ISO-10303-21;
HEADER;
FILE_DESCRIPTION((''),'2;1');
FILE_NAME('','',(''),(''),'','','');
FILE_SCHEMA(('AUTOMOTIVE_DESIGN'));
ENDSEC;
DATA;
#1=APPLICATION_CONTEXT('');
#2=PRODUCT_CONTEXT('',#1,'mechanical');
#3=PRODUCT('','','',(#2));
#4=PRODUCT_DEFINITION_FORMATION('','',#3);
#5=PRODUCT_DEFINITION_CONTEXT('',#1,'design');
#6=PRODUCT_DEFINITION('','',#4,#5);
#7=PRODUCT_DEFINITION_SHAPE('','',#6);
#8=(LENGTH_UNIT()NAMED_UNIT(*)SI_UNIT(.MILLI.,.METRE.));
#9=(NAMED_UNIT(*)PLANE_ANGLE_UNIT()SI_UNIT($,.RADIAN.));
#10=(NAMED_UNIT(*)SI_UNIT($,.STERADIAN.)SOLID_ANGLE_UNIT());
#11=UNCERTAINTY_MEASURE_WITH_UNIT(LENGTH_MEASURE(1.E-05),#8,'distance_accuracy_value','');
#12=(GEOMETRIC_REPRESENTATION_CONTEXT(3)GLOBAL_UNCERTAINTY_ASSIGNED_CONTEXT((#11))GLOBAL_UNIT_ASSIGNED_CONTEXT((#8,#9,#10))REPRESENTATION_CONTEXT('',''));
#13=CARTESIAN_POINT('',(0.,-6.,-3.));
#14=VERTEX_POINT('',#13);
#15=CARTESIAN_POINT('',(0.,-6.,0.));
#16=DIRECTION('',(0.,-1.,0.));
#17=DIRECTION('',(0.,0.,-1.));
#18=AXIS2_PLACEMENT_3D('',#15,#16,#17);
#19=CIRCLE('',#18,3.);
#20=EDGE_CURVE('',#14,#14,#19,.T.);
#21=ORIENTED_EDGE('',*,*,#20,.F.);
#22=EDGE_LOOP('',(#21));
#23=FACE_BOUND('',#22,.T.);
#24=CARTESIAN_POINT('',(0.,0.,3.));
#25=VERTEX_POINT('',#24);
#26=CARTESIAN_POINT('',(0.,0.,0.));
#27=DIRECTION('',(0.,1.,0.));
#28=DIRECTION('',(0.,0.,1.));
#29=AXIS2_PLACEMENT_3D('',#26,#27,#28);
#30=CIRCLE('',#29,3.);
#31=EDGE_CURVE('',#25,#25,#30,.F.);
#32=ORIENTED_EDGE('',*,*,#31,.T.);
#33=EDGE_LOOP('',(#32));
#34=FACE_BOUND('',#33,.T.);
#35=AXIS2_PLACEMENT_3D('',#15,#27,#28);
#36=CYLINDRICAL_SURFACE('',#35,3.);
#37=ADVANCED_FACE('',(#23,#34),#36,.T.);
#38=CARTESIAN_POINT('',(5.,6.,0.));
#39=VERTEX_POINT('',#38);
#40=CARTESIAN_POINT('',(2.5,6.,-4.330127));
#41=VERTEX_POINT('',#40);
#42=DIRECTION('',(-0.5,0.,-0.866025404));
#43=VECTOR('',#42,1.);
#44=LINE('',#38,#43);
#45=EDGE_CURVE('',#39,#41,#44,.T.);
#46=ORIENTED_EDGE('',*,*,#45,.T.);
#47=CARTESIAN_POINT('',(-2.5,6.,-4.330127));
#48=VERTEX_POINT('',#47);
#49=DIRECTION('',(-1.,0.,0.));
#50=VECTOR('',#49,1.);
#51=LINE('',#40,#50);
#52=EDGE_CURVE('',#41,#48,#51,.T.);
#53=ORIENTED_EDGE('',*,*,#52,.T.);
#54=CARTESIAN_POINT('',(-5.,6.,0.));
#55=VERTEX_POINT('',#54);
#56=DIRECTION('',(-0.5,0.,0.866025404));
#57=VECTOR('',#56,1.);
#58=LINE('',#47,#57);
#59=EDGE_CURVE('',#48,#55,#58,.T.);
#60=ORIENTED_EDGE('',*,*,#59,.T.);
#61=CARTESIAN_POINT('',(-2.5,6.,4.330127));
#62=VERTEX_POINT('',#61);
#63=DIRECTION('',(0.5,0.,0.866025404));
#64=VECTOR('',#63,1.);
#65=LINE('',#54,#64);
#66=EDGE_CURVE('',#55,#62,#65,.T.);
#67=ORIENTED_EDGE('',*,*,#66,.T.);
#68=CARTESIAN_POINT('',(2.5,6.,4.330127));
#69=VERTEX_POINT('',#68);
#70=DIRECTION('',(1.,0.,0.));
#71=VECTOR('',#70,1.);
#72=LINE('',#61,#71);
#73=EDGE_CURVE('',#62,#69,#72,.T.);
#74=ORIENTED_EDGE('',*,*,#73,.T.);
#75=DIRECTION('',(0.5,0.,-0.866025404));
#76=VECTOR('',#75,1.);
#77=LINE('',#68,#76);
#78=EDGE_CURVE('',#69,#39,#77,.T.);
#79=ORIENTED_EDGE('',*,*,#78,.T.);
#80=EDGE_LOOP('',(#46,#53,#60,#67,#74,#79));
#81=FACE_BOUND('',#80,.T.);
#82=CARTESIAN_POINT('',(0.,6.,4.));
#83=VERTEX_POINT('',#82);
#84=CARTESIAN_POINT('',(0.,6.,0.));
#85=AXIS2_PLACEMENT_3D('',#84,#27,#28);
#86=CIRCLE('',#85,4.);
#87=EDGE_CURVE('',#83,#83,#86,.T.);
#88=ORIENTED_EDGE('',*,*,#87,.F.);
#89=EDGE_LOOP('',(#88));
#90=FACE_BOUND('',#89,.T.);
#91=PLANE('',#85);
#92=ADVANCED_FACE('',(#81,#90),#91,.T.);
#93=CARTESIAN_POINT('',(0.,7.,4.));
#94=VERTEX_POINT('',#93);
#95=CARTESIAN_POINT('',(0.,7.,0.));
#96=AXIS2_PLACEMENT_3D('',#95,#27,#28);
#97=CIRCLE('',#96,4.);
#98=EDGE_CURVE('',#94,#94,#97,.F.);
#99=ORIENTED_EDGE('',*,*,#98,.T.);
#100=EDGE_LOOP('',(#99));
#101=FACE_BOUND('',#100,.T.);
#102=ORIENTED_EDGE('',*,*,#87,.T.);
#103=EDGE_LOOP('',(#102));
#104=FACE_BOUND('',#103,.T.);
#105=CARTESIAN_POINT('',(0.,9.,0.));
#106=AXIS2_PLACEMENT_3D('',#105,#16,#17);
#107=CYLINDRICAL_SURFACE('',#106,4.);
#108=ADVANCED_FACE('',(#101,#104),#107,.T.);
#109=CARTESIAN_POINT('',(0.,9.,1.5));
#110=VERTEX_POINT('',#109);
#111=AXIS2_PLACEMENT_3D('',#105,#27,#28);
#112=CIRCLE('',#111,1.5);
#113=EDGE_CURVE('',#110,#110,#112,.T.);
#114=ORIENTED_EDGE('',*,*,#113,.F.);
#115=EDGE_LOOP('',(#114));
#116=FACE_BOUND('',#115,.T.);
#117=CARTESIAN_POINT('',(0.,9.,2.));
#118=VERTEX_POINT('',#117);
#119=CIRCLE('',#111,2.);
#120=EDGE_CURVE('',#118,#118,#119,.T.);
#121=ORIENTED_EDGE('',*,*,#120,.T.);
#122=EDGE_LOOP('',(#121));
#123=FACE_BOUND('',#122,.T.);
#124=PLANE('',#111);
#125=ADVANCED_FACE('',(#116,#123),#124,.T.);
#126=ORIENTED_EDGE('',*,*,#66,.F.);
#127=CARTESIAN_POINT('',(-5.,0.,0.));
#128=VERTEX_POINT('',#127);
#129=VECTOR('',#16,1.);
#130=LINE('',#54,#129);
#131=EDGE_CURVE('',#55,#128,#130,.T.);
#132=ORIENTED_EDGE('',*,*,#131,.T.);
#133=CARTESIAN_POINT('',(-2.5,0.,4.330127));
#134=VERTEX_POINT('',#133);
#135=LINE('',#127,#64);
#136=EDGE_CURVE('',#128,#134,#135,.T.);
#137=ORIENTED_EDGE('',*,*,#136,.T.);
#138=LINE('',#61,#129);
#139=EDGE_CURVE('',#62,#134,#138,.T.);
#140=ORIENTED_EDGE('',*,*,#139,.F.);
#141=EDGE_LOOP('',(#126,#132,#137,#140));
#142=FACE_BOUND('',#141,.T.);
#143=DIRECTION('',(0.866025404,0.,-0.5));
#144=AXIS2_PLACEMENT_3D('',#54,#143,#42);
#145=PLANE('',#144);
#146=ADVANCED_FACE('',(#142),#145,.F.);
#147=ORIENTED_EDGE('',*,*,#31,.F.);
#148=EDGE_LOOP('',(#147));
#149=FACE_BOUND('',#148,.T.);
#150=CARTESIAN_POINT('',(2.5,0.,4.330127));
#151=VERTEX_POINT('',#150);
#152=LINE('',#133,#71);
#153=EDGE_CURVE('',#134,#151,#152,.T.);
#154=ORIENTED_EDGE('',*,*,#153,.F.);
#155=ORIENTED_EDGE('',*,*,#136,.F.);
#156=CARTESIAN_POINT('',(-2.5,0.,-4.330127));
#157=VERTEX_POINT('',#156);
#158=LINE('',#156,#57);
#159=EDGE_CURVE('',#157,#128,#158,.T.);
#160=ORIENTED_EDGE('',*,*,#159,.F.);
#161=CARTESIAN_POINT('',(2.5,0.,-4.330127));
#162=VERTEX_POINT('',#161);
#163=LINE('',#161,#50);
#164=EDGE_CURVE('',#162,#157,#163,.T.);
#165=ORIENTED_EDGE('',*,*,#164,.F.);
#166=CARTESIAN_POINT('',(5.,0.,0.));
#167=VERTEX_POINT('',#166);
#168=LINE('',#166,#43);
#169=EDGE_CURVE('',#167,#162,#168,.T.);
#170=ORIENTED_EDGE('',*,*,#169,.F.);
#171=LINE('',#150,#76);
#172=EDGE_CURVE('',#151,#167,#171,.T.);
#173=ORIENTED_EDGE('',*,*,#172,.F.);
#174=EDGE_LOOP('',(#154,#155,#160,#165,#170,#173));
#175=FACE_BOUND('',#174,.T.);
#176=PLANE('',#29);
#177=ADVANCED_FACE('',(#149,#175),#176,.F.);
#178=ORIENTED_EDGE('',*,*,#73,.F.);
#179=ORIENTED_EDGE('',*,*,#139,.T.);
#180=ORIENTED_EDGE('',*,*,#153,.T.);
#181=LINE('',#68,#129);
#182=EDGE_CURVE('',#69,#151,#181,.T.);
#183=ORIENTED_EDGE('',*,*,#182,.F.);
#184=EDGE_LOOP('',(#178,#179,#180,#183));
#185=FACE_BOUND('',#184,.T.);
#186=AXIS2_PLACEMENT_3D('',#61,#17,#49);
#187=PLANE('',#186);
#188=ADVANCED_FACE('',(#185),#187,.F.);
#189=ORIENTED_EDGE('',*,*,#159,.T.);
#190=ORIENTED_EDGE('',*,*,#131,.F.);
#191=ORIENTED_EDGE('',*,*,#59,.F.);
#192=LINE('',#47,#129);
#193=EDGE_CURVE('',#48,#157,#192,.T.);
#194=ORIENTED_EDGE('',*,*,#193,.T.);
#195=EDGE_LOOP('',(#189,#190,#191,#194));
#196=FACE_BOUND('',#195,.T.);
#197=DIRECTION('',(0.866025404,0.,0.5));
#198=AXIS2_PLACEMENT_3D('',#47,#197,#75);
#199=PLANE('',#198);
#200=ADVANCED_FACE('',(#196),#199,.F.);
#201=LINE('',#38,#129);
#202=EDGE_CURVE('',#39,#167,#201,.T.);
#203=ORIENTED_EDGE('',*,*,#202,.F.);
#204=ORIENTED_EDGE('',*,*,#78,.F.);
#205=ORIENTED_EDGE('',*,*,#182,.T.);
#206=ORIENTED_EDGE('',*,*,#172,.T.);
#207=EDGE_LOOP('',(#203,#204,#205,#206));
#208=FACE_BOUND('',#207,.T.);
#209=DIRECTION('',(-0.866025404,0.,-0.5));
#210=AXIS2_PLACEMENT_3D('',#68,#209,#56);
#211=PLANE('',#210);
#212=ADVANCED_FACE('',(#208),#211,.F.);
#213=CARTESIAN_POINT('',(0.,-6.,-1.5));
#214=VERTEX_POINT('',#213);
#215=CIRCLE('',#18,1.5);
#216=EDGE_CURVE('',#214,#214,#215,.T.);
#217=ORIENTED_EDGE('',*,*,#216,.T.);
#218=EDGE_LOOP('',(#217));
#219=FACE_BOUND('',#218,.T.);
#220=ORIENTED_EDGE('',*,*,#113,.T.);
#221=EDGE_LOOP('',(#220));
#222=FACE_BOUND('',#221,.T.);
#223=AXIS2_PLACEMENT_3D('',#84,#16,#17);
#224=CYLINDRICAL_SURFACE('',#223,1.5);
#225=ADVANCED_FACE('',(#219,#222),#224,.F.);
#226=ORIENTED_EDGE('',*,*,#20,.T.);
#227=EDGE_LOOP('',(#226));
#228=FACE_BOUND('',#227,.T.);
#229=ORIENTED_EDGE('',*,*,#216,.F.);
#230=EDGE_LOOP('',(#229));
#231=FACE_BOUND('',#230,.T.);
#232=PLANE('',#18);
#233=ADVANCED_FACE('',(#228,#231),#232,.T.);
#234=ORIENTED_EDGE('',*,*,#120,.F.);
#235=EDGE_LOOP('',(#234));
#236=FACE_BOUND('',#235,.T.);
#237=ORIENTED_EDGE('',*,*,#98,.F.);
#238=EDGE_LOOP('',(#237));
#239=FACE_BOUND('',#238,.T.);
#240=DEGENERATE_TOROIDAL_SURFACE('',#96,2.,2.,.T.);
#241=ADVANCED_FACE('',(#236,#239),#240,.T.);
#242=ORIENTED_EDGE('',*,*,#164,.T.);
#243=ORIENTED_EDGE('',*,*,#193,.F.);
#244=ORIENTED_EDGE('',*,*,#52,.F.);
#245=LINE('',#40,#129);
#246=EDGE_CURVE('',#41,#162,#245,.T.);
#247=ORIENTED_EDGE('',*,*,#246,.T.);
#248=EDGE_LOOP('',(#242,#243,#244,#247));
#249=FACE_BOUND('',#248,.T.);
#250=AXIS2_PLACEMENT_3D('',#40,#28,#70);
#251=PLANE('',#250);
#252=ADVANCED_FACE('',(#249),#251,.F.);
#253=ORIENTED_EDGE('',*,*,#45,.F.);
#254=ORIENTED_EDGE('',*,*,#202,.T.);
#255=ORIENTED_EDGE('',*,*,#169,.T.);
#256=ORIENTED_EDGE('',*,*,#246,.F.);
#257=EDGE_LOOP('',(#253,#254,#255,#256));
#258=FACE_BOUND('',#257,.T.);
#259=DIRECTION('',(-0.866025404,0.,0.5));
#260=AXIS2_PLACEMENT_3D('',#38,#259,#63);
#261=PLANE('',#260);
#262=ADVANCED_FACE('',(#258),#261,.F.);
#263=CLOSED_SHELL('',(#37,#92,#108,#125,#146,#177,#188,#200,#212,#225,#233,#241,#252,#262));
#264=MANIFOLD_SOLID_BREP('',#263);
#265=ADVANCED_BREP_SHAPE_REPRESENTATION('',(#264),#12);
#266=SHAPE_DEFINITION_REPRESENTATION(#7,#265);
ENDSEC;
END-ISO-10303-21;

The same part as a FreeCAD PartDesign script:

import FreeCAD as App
import Part
import Sketcher
Q = App.Units.Quantity


def edges_at(feature, points):
    """Names of the edges that pass closest to the given points."""
    edges = feature.Shape.Edges
    near = lambda p: min(range(len(edges)), key=lambda i: edges[i].distToShape(Part.Vertex(*p))[0])
    return sorted({f"Edge{near(p) + 1}" for p in points})


def add_polygon(sketch, points):
    """Adds a closed chain of lines whose ends are joined by coincident constraints."""
    first, n = sketch.GeometryCount, len(points)
    for a, b in zip(points, points[1:] + points[:1]):
        sketch.addGeometry(Part.LineSegment(App.Vector(*a, 0), App.Vector(*b, 0)), False)
    for i in range(n):
        sketch.addConstraint(Sketcher.Constraint("Coincident", first + i, 2, first + (i + 1) % n, 1))

doc = App.newDocument("Part")
body = doc.addObject("PartDesign::Body", "Body")

# Sketch on XZ plane
sketch1 = body.newObject("Sketcher::SketchObject", "Sketch")
sketch1.AttachmentSupport = (doc.getObject("XZ_Plane"), [""])
sketch1.MapMode = "FlatFace"
add_polygon(sketch1, [(5, 0), (2.5, -4.3), (-2.5, -4.3), (-5, 0), (-2.5, 4.3), (2.5, 4.3)])  # lines 0-5
sketch1.addGeometry(Part.Circle(App.Vector(0, 0, 0), App.Vector(0, 0, 1), 1.5), False)  # 6
sketch1.addConstraint(Sketcher.Constraint("Horizontal", 1))
sketch1.addConstraint(Sketcher.Constraint("Horizontal", 4))
sketch1.addConstraint(Sketcher.Constraint("Coincident", 6, 3, -1, 1))
sketch1.addConstraint(Sketcher.Constraint("Symmetric", 0, 2, 3, 2, -1, 1))
sketch1.addConstraint(Sketcher.Constraint("Symmetric", 2, 2, 5, 2, -1, 1))
sketch1.addConstraint(Sketcher.Constraint("PointOnObject", 2, 2, -1))
sketch1.addConstraint(Sketcher.Constraint("Parallel", 2, 5))
sketch1.addConstraint(Sketcher.Constraint("Vertical", 1, 2, 3, 2))
sketch1.addConstraint(Sketcher.Constraint("Diameter", 6, 3.0))
sketch1.addConstraint(Sketcher.Constraint("DistanceX", 1, 2, 1, 1, 5.0))
sketch1.addConstraint(Sketcher.Constraint("Angle", 0, Q("-120 deg")))
sketch1.addConstraint(Sketcher.Constraint("Distance", 0, 5.0))
pad1 = body.newObject("PartDesign::Pad", "Pad")
pad1.Profile = sketch1
pad1.Length = 6
pad1.Reversed = True

# Sketch on XZ plane
sketch2 = body.newObject("Sketcher::SketchObject", "Sketch001")
sketch2.AttachmentSupport = (doc.getObject("XZ_Plane"), [""])
sketch2.MapMode = "FlatFace"
sketch2.AttachmentOffset = App.Placement(App.Vector(0, 0, -6), App.Rotation())
sketch2.addGeometry(Part.Circle(App.Vector(0, 0, 0), App.Vector(0, 0, 1), 4), False)
sketch2.addGeometry(Part.Circle(App.Vector(0, 0, 0), App.Vector(0, 0, 1), 1.5), False)
sketch2.addConstraint(Sketcher.Constraint("Coincident", 0, 3, -1, 1))
sketch2.addConstraint(Sketcher.Constraint("Coincident", 1, 3, -1, 1))
sketch2.addConstraint(Sketcher.Constraint("Diameter", 0, 8.0))
sketch2.addConstraint(Sketcher.Constraint("Diameter", 1, 3.0))
pad2 = body.newObject("PartDesign::Pad", "Pad001")
pad2.Profile = sketch2
pad2.Length = 3
pad2.Reversed = True
doc.recompute()

fillet = body.newObject("PartDesign::Fillet", "Fillet")
fillet.Base = (pad2, edges_at(pad2, [(0, 9, -4)]))
fillet.Radius = 2

# Sketch on XZ plane
sketch3 = body.newObject("Sketcher::SketchObject", "Sketch002")
sketch3.AttachmentSupport = (doc.getObject("XZ_Plane"), [""])
sketch3.MapMode = "FlatFace"
sketch3.AttachmentOffset = App.Placement(App.Vector(0, 0, 6), App.Rotation())
sketch3.addGeometry(Part.Circle(App.Vector(0, 0, 0), App.Vector(0, 0, 1), 3), False)
sketch3.addGeometry(Part.Circle(App.Vector(0, 0, 0), App.Vector(0, 0, 1), 1.5), False)
sketch3.addConstraint(Sketcher.Constraint("Coincident", 0, 3, -1, 1))
sketch3.addConstraint(Sketcher.Constraint("Coincident", 1, 3, -1, 1))
sketch3.addConstraint(Sketcher.Constraint("Diameter", 0, 6.0))
sketch3.addConstraint(Sketcher.Constraint("Diameter", 1, 3.0))
pad3 = body.newObject("PartDesign::Pad", "Pad002")
pad3.Profile = sketch3
pad3.Length = 6
pad3.Reversed = True

doc.recompute()
